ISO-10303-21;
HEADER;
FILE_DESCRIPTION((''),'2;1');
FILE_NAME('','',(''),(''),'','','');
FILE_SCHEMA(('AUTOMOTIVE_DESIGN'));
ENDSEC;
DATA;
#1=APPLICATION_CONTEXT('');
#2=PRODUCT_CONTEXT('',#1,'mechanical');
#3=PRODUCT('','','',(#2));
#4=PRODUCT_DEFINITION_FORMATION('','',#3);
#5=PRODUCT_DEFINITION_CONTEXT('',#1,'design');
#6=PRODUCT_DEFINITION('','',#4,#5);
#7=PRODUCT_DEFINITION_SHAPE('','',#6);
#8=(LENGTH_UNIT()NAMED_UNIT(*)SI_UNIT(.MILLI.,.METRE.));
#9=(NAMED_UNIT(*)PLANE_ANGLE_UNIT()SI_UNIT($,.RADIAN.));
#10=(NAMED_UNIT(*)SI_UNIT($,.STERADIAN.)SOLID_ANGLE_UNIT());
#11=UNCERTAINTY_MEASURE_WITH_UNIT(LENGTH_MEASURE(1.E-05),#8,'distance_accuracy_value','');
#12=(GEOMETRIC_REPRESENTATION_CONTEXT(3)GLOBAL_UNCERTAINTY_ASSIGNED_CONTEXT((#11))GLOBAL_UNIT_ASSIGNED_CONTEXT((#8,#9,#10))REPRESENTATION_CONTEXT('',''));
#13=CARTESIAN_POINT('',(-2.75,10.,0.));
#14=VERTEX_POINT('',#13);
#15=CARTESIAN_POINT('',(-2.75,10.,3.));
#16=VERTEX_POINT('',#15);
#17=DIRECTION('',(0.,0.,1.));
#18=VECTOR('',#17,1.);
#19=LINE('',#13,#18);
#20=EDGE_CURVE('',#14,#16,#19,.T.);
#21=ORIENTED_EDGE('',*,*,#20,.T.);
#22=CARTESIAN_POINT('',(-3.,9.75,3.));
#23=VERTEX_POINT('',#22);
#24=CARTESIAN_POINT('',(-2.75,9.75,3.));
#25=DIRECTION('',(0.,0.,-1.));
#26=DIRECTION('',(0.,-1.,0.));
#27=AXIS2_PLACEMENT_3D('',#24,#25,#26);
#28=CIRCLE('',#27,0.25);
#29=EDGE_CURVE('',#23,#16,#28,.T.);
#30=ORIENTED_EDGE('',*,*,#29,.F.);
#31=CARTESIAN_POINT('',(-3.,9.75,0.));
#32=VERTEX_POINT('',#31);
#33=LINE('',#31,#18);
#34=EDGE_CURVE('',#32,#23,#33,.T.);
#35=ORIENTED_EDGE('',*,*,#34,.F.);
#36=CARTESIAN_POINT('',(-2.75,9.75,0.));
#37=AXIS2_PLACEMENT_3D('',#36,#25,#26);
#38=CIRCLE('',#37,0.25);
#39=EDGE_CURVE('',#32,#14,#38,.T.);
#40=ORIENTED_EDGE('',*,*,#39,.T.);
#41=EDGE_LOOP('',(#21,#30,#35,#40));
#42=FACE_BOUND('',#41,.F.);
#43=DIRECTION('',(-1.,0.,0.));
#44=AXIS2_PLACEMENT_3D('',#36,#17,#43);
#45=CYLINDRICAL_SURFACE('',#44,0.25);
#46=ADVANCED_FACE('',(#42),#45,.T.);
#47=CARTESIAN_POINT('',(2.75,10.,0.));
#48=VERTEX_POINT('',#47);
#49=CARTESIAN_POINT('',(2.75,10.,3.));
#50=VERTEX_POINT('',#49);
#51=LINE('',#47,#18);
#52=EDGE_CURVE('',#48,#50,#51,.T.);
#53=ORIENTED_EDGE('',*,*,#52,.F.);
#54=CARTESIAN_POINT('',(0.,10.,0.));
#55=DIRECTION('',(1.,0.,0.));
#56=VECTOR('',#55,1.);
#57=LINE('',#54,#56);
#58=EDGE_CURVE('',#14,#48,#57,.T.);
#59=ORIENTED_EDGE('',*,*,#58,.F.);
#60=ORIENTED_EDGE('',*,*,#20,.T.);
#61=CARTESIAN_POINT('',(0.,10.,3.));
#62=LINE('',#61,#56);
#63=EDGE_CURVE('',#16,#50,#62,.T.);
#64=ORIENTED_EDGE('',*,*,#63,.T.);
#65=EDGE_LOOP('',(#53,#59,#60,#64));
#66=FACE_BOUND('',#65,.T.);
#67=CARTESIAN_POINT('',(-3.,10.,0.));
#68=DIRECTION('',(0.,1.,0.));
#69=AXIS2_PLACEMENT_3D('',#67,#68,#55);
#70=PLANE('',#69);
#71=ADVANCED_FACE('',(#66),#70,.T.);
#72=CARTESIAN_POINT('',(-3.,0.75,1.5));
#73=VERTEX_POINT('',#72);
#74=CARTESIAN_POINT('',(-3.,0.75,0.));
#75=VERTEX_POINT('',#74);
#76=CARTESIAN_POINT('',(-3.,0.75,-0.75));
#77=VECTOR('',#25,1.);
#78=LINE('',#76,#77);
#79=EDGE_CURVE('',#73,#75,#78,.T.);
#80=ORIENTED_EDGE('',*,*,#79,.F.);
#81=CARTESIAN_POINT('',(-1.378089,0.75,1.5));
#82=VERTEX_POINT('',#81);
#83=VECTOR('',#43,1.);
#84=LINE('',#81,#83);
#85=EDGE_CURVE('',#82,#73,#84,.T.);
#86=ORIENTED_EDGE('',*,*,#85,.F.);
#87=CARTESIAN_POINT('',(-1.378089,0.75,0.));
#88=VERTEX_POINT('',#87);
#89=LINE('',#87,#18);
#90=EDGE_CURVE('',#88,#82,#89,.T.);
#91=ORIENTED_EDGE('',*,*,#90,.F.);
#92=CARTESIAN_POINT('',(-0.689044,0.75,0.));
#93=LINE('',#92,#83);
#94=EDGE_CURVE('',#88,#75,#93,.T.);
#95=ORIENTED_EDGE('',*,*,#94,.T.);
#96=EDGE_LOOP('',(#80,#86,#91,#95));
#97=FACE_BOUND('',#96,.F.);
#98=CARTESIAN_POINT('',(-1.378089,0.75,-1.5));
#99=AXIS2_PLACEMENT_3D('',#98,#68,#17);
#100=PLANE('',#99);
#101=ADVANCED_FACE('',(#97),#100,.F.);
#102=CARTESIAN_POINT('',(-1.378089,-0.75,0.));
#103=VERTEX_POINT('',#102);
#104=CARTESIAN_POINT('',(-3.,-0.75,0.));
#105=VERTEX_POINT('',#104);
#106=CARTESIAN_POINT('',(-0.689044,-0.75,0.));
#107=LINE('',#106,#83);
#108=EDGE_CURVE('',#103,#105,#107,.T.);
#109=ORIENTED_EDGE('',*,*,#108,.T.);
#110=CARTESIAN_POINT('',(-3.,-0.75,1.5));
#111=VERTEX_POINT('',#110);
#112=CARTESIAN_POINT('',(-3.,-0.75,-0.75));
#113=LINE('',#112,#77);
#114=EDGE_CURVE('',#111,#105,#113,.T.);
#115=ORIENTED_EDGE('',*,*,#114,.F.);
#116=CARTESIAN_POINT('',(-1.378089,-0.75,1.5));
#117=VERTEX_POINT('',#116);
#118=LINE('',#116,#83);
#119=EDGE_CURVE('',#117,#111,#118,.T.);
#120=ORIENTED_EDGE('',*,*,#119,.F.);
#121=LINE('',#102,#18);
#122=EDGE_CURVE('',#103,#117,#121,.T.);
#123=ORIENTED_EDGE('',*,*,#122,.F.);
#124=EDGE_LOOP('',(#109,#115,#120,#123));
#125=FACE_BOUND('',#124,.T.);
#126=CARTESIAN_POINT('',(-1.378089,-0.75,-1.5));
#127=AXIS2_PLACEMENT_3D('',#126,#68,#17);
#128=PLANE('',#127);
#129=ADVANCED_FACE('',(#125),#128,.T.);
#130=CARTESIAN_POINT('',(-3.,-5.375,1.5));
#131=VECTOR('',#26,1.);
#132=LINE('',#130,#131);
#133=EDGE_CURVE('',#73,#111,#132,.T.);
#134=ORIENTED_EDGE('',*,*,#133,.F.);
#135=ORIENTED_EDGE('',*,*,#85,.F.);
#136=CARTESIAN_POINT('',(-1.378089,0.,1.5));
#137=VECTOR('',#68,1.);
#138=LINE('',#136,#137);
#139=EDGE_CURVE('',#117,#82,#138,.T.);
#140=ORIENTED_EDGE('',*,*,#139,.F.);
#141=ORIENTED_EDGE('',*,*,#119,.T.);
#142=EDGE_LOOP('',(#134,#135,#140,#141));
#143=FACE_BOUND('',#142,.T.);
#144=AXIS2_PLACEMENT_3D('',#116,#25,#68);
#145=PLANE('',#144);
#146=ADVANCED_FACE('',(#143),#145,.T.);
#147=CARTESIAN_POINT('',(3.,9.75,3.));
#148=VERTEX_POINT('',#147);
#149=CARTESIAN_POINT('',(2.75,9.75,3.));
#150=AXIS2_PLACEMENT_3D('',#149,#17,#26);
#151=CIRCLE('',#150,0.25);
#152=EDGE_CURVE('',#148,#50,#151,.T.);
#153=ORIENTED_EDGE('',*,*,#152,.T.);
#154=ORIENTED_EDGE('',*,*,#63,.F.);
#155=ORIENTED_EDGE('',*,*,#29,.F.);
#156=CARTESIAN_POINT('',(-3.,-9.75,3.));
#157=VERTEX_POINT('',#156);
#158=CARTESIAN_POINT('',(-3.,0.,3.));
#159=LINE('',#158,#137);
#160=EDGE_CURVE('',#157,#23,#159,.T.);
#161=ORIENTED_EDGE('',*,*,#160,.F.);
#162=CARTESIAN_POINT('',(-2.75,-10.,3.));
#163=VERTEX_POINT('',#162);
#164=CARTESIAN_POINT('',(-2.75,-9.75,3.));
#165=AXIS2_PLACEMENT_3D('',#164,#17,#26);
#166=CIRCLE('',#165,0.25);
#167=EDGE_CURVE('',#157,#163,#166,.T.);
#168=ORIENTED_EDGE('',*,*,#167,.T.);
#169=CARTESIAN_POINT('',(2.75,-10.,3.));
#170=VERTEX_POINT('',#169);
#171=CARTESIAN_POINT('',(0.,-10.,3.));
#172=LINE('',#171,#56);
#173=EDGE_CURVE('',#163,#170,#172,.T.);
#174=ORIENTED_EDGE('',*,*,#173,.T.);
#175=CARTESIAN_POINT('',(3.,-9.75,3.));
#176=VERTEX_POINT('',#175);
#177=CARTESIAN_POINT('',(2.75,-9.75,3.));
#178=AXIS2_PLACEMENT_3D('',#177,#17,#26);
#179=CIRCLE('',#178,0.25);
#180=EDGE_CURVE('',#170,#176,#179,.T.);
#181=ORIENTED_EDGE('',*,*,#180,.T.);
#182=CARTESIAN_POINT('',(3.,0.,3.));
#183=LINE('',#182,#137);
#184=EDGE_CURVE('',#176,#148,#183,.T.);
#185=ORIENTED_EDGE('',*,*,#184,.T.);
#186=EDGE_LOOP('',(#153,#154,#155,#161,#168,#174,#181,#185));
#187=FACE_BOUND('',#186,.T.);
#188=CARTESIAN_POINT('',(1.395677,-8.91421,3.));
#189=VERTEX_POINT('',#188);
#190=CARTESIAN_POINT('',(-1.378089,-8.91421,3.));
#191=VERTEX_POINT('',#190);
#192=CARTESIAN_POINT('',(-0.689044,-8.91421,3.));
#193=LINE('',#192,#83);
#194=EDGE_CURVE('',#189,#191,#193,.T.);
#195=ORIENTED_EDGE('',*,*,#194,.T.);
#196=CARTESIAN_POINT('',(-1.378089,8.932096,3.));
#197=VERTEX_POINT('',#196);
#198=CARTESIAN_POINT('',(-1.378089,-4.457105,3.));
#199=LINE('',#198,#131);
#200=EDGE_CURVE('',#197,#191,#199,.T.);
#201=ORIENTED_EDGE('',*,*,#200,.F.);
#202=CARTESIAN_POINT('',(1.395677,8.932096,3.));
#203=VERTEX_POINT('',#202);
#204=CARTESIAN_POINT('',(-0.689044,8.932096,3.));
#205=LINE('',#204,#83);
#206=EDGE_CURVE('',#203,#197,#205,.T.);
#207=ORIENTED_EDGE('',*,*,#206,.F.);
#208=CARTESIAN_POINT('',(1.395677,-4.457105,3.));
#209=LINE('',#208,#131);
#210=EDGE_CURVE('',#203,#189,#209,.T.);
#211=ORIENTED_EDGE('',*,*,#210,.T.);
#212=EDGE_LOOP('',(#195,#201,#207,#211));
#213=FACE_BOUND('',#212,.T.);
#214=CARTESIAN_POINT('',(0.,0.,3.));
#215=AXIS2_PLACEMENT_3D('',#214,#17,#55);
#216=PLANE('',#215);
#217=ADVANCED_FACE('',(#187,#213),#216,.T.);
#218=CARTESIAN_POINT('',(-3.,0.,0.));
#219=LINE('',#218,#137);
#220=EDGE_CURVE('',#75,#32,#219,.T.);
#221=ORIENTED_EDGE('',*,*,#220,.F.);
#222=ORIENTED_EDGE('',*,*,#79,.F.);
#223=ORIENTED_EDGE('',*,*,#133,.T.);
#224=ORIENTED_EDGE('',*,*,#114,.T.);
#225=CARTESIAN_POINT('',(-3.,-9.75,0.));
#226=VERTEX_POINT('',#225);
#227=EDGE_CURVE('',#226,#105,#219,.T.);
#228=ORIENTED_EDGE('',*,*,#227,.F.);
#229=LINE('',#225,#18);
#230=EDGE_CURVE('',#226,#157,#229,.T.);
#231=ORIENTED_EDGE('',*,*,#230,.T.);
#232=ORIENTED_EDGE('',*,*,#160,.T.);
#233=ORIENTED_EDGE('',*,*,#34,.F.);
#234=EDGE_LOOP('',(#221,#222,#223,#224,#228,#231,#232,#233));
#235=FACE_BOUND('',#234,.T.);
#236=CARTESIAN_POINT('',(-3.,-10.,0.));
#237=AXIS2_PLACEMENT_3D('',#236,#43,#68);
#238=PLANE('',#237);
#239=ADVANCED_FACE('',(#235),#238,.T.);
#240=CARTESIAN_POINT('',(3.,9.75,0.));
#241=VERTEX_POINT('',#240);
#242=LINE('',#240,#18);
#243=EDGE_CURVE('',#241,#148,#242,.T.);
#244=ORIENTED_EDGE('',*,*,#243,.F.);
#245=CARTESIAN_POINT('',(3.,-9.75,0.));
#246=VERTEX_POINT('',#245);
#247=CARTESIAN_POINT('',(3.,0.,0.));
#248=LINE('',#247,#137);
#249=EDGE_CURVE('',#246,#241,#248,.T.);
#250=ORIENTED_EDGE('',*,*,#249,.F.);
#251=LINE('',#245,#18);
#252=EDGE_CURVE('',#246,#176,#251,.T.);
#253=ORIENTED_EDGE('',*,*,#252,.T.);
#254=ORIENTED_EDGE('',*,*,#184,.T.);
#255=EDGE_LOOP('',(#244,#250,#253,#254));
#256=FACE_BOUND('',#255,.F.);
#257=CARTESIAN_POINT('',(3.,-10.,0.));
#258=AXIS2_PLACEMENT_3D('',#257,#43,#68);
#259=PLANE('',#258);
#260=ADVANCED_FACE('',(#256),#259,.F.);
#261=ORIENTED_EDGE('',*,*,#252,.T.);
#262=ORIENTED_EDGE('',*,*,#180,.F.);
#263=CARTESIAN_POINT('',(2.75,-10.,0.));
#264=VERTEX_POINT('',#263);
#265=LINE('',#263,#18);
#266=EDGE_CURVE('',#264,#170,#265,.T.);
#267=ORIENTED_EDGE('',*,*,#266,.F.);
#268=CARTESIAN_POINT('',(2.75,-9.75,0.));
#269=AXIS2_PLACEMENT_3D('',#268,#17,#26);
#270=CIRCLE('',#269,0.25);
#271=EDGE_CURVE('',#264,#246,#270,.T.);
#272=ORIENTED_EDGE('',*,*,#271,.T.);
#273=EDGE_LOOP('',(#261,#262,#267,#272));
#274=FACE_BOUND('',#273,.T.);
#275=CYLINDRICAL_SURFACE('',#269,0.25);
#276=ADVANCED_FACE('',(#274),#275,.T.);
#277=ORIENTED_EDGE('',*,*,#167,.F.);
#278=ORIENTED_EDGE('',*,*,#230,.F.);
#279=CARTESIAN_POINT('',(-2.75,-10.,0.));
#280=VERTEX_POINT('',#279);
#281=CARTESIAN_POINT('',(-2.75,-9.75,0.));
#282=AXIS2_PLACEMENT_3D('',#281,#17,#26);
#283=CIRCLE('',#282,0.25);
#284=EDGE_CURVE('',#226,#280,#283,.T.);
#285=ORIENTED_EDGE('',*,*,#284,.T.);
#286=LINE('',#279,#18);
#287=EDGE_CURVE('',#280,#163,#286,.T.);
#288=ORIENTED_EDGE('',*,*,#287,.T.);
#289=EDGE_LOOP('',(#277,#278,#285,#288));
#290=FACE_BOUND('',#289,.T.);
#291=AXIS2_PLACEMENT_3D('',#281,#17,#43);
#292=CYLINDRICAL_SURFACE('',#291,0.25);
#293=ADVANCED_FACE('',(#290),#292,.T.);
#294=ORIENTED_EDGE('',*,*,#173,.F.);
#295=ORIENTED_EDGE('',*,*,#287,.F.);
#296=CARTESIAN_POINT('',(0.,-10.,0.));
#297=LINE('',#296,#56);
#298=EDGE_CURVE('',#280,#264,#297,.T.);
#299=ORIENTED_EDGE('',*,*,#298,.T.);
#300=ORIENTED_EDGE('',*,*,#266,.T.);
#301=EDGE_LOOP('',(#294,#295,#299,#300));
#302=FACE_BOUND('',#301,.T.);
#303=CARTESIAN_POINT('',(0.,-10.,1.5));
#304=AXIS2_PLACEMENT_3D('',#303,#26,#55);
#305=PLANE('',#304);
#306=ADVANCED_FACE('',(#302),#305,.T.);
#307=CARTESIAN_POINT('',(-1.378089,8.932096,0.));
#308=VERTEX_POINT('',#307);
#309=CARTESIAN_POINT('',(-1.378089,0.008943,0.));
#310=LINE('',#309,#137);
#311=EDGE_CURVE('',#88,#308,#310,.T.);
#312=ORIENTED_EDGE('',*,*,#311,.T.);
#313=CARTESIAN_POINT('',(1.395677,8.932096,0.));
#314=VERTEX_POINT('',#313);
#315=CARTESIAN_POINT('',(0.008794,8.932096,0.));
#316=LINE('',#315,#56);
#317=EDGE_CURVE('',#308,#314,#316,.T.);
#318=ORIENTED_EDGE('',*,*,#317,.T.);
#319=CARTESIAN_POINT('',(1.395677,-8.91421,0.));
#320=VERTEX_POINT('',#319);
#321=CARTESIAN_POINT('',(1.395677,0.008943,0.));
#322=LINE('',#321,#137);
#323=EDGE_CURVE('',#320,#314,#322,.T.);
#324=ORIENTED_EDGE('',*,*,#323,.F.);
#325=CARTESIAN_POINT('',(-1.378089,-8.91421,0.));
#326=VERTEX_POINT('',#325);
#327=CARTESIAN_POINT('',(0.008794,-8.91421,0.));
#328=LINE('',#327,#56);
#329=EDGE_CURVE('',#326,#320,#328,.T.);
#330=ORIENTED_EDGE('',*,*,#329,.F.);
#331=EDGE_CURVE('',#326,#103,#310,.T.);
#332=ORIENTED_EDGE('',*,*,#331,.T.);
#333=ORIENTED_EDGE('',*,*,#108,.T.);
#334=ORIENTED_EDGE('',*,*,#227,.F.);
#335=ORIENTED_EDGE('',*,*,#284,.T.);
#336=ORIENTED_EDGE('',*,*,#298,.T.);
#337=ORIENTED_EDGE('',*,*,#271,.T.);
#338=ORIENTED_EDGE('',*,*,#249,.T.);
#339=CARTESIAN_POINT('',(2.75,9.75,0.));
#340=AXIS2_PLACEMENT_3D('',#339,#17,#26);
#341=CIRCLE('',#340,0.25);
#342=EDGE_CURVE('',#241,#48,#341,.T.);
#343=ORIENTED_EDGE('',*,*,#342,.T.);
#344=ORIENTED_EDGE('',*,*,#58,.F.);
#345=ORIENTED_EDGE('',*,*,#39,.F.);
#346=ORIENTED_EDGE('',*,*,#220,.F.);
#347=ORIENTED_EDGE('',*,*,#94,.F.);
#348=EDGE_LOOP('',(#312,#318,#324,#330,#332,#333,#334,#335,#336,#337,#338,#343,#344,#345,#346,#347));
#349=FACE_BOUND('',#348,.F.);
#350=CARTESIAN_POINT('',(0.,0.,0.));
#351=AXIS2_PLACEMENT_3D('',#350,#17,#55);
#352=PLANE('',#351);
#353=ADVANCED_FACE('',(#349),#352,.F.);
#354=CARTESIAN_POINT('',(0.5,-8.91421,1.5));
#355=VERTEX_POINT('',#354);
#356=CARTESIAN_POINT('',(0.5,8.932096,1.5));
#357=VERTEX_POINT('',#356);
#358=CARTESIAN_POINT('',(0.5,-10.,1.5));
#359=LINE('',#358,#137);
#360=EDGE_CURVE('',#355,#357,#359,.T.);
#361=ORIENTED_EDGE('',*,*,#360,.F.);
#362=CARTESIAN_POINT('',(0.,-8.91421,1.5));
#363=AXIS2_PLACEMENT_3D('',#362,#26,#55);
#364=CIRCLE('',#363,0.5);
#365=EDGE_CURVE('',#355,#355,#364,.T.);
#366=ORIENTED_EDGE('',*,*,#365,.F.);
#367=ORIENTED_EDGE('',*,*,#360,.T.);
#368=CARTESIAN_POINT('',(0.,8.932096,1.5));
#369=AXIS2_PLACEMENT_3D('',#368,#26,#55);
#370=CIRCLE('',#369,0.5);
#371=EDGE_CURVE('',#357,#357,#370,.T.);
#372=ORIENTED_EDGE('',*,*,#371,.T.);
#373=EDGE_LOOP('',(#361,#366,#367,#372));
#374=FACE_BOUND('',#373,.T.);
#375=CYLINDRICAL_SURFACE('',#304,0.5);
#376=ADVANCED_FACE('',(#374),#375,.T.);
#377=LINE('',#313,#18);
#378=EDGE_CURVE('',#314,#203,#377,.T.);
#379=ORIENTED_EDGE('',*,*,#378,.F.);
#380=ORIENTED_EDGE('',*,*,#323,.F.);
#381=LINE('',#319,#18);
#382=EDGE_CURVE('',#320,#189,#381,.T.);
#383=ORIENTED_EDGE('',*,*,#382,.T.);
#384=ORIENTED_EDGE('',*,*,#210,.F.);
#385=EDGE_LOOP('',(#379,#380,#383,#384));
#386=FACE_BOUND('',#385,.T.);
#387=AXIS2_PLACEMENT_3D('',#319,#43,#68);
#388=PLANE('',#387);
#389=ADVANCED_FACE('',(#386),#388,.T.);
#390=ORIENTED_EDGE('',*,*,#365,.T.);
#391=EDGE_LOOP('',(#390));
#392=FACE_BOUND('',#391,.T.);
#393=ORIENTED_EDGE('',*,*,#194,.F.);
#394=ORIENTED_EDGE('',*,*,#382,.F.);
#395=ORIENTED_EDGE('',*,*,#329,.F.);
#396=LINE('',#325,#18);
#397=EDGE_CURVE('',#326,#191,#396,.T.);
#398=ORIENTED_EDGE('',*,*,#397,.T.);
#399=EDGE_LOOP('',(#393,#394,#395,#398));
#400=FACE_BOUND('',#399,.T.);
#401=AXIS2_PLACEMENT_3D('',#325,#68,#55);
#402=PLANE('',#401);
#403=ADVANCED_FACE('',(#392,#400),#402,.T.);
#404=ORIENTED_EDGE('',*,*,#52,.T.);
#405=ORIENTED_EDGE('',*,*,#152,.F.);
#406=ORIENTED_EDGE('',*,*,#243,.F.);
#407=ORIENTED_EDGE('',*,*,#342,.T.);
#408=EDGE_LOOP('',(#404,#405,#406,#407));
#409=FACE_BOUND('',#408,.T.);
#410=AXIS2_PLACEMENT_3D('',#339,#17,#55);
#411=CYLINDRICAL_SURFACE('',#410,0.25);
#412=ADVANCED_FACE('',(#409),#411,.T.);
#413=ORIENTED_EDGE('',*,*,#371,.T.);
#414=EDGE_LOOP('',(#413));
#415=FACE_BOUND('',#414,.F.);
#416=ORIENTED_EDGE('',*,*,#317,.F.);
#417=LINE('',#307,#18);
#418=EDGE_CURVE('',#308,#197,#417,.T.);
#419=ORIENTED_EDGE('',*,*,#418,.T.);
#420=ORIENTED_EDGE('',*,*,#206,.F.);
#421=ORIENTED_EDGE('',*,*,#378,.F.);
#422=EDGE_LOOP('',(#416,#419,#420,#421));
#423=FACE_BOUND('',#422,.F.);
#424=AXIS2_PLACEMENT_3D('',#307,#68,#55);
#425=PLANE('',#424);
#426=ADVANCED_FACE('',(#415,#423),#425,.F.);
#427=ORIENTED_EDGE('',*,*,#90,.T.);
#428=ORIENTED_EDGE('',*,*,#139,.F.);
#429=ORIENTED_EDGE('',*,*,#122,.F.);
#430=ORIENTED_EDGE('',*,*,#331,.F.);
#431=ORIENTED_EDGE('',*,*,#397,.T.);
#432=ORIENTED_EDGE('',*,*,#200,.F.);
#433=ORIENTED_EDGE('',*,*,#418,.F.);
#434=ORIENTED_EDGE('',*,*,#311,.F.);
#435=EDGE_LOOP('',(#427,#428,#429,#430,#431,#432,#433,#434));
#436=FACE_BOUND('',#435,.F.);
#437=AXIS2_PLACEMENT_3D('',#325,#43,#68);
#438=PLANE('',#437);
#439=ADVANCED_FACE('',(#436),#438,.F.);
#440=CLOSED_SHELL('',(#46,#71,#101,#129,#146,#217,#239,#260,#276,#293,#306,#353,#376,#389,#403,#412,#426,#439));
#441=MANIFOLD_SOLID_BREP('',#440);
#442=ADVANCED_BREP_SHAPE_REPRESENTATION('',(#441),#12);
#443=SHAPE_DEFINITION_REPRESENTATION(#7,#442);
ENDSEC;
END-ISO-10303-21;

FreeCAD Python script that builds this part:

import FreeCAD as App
import Part
import Sketcher
from FreeCAD import Vector
Q = App.Units.Quantity


def edges_at(feature, points):
    """Names of the edges that pass closest to the given points."""
    edges = feature.Shape.Edges
    near = lambda p: min(range(len(edges)), key=lambda i: edges[i].distToShape(Part.Vertex(*p))[0])
    return sorted({f"Edge{near(p) + 1}" for p in points})


def add_polygon(sketch, points):
    """Adds a closed chain of lines whose ends are joined by coincident constraints."""
    first, n = sketch.GeometryCount, len(points)
    for a, b in zip(points, points[1:] + points[:1]):
        sketch.addGeometry(Part.LineSegment(App.Vector(*a, 0), App.Vector(*b, 0)), False)
    for i in range(n):
        sketch.addConstraint(Sketcher.Constraint("Coincident", first + i, 2, first + (i + 1) % n, 1))

doc = App.newDocument("Part")
params = doc.addObject("Spreadsheet::Sheet", "Params")
for row, (alias, value) in enumerate([
    ("sketch1_width", "6 mm"),
    ("sketch1_height", "20 mm"),
    ("pad1_length", "3 mm"),
    ("fillet_radius", "0.25 mm"),
    ("pocket1_length", "5.9 mm"),
    ("sketch3_diameter", "1 mm"),
    ("pad2_length", "19.2 mm"),
    ("sketch4_height", "3 mm"),
    ("sketch4_width", "1.5 mm"),
    ("pocket2_length", "3.6 mm"),
], start=1):
    params.set(f"A{row}", alias)
    params.set(f"B{row}", "=" + value)
    params.setAlias(f"B{row}", alias)

body = doc.addObject("PartDesign::Body", "Body")

# Sketch on XY plane
sketch1 = body.newObject("Sketcher::SketchObject", "Sketch")
sketch1.AttachmentSupport = (doc.getObject("XY_Plane"), [""])
sketch1.MapMode = "FlatFace"
add_polygon(sketch1, [(-3, 10), (-3, -10), (3, -10), (3, 10)])  # lines 0-3
sketch1.addConstraint(Sketcher.Constraint("Vertical", 0))
sketch1.addConstraint(Sketcher.Constraint("Horizontal", 1))
sketch1.addConstraint(Sketcher.Constraint("Vertical", 2))
sketch1.addConstraint(Sketcher.Constraint("Horizontal", 3))
sketch1.addConstraint(Sketcher.Constraint("Symmetric", 0, 2, 2, 2, -1, 1))
sketch1.addConstraint(Sketcher.Constraint("DistanceX", 1, 1, 1, 2, Q("6 mm")))
sketch1.addConstraint(Sketcher.Constraint("DistanceY", 0, 2, 0, 1, Q("20 mm")))
sketch1.setExpression("Constraints[9]", "Params.sketch1_width")
sketch1.setExpression("Constraints[10]", "Params.sketch1_height")
pad1 = body.newObject("PartDesign::Pad", "Pad")
pad1.Profile = sketch1
pad1.setExpression("Length", "Params.pad1_length")
doc.recompute()

fillet = body.newObject("PartDesign::Fillet", "Fillet")
fillet.Base = (pad1, edges_at(pad1, [
    (3, 10, 1.5),
    (-3, 10, 1.5),
    (-3, -10, 1.5),
    (3, -10, 1.5),
]))
fillet.setExpression("Radius", "Params.fillet_radius")

# Sketch on XY plane
sketch2 = body.newObject("Sketcher::SketchObject", "Sketch001")
sketch2.AttachmentSupport = (doc.getObject("XY_Plane"), [""])
sketch2.MapMode = "FlatFace"
add_polygon(sketch2, [(-1.4, 8.9), (-1.4, -8.9), (1.4, -8.9), (1.4, 8.9)])  # lines 0-3
sketch2.addConstraint(Sketcher.Constraint("Vertical", 0))
sketch2.addConstraint(Sketcher.Constraint("Horizontal", 1))
sketch2.addConstraint(Sketcher.Constraint("Vertical", 2))
sketch2.addConstraint(Sketcher.Constraint("Horizontal", 3))
sketch2.addConstraint(Sketcher.Constraint("DistanceX", 1, 1, 1, 2, Q("2.773766 mm")))
sketch2.addConstraint(Sketcher.Constraint("DistanceY", 0, 2, 0, 1, Q("17.846306 mm")))
sketch2.addConstraint(Sketcher.Constraint("DistanceX", 0, 2, -1, 1, Q("1.378089 mm")))
sketch2.addConstraint(Sketcher.Constraint("DistanceY", 0, 2, -1, 1, Q("8.91421 mm")))
pocket1 = body.newObject("PartDesign::Pocket", "Pocket")
pocket1.Profile = sketch2
pocket1.setExpression("Length", "Params.pocket1_length")
pocket1.Reversed = True

# Sketch on XZ plane
sketch3 = body.newObject("Sketcher::SketchObject", "Sketch002")
sketch3.AttachmentSupport = (doc.getObject("XZ_Plane"), [""])
sketch3.MapMode = "FlatFace"
sketch3.AttachmentOffset = App.Placement(Vector(0, 0, 10), App.Rotation())
sketch3.addGeometry(Part.Circle(Vector(0, 1.5, 0), Vector(0, 0, 1), 0.5), False)
sketch3.addConstraint(Sketcher.Constraint("PointOnObject", 0, 3, -2))
sketch3.addConstraint(Sketcher.Constraint("Diameter", 0, Q("1 mm")))
sketch3.addConstraint(Sketcher.Constraint("DistanceY", -1, 1, 0, 3, Q("1.5 mm")))
sketch3.setExpression("Constraints[1]", "Params.sketch3_diameter")
pad2 = body.newObject("PartDesign::Pad", "Pad001")
pad2.Profile = sketch3
pad2.setExpression("Length", "Params.pad2_length")
pad2.Reversed = True

# Sketch on YZ plane
sketch4 = body.newObject("Sketcher::SketchObject", "Sketch003")
sketch4.AttachmentSupport = (doc.getObject("YZ_Plane"), [""])
sketch4.MapMode = "FlatFace"
sketch4.AttachmentOffset = App.Placement(Vector(0, 0, -1.378089), App.Rotation())
add_polygon(sketch4, [(-0.8, 1.5), (-0.8, -1.5), (0.8, -1.5), (0.8, 1.5)])  # lines 0-3
sketch4.addConstraint(Sketcher.Constraint("Vertical", 0))
sketch4.addConstraint(Sketcher.Constraint("Horizontal", 1))
sketch4.addConstraint(Sketcher.Constraint("Vertical", 2))
sketch4.addConstraint(Sketcher.Constraint("Horizontal", 3))
sketch4.addConstraint(Sketcher.Constraint("Symmetric", 0, 2, 2, 2, -1, 1))
sketch4.addConstraint(Sketcher.Constraint("DistanceY", 0, 2, 0, 1, Q("3 mm")))
sketch4.addConstraint(Sketcher.Constraint("DistanceX", 1, 1, 1, 2, Q("1.5 mm")))
sketch4.setExpression("Constraints[9]", "Params.sketch4_height")
sketch4.setExpression("Constraints[10]", "Params.sketch4_width")
pocket2 = body.newObject("PartDesign::Pocket", "Pocket001")
pocket2.Profile = sketch4
pocket2.setExpression("Length", "Params.pocket2_length")

doc.recompute()
